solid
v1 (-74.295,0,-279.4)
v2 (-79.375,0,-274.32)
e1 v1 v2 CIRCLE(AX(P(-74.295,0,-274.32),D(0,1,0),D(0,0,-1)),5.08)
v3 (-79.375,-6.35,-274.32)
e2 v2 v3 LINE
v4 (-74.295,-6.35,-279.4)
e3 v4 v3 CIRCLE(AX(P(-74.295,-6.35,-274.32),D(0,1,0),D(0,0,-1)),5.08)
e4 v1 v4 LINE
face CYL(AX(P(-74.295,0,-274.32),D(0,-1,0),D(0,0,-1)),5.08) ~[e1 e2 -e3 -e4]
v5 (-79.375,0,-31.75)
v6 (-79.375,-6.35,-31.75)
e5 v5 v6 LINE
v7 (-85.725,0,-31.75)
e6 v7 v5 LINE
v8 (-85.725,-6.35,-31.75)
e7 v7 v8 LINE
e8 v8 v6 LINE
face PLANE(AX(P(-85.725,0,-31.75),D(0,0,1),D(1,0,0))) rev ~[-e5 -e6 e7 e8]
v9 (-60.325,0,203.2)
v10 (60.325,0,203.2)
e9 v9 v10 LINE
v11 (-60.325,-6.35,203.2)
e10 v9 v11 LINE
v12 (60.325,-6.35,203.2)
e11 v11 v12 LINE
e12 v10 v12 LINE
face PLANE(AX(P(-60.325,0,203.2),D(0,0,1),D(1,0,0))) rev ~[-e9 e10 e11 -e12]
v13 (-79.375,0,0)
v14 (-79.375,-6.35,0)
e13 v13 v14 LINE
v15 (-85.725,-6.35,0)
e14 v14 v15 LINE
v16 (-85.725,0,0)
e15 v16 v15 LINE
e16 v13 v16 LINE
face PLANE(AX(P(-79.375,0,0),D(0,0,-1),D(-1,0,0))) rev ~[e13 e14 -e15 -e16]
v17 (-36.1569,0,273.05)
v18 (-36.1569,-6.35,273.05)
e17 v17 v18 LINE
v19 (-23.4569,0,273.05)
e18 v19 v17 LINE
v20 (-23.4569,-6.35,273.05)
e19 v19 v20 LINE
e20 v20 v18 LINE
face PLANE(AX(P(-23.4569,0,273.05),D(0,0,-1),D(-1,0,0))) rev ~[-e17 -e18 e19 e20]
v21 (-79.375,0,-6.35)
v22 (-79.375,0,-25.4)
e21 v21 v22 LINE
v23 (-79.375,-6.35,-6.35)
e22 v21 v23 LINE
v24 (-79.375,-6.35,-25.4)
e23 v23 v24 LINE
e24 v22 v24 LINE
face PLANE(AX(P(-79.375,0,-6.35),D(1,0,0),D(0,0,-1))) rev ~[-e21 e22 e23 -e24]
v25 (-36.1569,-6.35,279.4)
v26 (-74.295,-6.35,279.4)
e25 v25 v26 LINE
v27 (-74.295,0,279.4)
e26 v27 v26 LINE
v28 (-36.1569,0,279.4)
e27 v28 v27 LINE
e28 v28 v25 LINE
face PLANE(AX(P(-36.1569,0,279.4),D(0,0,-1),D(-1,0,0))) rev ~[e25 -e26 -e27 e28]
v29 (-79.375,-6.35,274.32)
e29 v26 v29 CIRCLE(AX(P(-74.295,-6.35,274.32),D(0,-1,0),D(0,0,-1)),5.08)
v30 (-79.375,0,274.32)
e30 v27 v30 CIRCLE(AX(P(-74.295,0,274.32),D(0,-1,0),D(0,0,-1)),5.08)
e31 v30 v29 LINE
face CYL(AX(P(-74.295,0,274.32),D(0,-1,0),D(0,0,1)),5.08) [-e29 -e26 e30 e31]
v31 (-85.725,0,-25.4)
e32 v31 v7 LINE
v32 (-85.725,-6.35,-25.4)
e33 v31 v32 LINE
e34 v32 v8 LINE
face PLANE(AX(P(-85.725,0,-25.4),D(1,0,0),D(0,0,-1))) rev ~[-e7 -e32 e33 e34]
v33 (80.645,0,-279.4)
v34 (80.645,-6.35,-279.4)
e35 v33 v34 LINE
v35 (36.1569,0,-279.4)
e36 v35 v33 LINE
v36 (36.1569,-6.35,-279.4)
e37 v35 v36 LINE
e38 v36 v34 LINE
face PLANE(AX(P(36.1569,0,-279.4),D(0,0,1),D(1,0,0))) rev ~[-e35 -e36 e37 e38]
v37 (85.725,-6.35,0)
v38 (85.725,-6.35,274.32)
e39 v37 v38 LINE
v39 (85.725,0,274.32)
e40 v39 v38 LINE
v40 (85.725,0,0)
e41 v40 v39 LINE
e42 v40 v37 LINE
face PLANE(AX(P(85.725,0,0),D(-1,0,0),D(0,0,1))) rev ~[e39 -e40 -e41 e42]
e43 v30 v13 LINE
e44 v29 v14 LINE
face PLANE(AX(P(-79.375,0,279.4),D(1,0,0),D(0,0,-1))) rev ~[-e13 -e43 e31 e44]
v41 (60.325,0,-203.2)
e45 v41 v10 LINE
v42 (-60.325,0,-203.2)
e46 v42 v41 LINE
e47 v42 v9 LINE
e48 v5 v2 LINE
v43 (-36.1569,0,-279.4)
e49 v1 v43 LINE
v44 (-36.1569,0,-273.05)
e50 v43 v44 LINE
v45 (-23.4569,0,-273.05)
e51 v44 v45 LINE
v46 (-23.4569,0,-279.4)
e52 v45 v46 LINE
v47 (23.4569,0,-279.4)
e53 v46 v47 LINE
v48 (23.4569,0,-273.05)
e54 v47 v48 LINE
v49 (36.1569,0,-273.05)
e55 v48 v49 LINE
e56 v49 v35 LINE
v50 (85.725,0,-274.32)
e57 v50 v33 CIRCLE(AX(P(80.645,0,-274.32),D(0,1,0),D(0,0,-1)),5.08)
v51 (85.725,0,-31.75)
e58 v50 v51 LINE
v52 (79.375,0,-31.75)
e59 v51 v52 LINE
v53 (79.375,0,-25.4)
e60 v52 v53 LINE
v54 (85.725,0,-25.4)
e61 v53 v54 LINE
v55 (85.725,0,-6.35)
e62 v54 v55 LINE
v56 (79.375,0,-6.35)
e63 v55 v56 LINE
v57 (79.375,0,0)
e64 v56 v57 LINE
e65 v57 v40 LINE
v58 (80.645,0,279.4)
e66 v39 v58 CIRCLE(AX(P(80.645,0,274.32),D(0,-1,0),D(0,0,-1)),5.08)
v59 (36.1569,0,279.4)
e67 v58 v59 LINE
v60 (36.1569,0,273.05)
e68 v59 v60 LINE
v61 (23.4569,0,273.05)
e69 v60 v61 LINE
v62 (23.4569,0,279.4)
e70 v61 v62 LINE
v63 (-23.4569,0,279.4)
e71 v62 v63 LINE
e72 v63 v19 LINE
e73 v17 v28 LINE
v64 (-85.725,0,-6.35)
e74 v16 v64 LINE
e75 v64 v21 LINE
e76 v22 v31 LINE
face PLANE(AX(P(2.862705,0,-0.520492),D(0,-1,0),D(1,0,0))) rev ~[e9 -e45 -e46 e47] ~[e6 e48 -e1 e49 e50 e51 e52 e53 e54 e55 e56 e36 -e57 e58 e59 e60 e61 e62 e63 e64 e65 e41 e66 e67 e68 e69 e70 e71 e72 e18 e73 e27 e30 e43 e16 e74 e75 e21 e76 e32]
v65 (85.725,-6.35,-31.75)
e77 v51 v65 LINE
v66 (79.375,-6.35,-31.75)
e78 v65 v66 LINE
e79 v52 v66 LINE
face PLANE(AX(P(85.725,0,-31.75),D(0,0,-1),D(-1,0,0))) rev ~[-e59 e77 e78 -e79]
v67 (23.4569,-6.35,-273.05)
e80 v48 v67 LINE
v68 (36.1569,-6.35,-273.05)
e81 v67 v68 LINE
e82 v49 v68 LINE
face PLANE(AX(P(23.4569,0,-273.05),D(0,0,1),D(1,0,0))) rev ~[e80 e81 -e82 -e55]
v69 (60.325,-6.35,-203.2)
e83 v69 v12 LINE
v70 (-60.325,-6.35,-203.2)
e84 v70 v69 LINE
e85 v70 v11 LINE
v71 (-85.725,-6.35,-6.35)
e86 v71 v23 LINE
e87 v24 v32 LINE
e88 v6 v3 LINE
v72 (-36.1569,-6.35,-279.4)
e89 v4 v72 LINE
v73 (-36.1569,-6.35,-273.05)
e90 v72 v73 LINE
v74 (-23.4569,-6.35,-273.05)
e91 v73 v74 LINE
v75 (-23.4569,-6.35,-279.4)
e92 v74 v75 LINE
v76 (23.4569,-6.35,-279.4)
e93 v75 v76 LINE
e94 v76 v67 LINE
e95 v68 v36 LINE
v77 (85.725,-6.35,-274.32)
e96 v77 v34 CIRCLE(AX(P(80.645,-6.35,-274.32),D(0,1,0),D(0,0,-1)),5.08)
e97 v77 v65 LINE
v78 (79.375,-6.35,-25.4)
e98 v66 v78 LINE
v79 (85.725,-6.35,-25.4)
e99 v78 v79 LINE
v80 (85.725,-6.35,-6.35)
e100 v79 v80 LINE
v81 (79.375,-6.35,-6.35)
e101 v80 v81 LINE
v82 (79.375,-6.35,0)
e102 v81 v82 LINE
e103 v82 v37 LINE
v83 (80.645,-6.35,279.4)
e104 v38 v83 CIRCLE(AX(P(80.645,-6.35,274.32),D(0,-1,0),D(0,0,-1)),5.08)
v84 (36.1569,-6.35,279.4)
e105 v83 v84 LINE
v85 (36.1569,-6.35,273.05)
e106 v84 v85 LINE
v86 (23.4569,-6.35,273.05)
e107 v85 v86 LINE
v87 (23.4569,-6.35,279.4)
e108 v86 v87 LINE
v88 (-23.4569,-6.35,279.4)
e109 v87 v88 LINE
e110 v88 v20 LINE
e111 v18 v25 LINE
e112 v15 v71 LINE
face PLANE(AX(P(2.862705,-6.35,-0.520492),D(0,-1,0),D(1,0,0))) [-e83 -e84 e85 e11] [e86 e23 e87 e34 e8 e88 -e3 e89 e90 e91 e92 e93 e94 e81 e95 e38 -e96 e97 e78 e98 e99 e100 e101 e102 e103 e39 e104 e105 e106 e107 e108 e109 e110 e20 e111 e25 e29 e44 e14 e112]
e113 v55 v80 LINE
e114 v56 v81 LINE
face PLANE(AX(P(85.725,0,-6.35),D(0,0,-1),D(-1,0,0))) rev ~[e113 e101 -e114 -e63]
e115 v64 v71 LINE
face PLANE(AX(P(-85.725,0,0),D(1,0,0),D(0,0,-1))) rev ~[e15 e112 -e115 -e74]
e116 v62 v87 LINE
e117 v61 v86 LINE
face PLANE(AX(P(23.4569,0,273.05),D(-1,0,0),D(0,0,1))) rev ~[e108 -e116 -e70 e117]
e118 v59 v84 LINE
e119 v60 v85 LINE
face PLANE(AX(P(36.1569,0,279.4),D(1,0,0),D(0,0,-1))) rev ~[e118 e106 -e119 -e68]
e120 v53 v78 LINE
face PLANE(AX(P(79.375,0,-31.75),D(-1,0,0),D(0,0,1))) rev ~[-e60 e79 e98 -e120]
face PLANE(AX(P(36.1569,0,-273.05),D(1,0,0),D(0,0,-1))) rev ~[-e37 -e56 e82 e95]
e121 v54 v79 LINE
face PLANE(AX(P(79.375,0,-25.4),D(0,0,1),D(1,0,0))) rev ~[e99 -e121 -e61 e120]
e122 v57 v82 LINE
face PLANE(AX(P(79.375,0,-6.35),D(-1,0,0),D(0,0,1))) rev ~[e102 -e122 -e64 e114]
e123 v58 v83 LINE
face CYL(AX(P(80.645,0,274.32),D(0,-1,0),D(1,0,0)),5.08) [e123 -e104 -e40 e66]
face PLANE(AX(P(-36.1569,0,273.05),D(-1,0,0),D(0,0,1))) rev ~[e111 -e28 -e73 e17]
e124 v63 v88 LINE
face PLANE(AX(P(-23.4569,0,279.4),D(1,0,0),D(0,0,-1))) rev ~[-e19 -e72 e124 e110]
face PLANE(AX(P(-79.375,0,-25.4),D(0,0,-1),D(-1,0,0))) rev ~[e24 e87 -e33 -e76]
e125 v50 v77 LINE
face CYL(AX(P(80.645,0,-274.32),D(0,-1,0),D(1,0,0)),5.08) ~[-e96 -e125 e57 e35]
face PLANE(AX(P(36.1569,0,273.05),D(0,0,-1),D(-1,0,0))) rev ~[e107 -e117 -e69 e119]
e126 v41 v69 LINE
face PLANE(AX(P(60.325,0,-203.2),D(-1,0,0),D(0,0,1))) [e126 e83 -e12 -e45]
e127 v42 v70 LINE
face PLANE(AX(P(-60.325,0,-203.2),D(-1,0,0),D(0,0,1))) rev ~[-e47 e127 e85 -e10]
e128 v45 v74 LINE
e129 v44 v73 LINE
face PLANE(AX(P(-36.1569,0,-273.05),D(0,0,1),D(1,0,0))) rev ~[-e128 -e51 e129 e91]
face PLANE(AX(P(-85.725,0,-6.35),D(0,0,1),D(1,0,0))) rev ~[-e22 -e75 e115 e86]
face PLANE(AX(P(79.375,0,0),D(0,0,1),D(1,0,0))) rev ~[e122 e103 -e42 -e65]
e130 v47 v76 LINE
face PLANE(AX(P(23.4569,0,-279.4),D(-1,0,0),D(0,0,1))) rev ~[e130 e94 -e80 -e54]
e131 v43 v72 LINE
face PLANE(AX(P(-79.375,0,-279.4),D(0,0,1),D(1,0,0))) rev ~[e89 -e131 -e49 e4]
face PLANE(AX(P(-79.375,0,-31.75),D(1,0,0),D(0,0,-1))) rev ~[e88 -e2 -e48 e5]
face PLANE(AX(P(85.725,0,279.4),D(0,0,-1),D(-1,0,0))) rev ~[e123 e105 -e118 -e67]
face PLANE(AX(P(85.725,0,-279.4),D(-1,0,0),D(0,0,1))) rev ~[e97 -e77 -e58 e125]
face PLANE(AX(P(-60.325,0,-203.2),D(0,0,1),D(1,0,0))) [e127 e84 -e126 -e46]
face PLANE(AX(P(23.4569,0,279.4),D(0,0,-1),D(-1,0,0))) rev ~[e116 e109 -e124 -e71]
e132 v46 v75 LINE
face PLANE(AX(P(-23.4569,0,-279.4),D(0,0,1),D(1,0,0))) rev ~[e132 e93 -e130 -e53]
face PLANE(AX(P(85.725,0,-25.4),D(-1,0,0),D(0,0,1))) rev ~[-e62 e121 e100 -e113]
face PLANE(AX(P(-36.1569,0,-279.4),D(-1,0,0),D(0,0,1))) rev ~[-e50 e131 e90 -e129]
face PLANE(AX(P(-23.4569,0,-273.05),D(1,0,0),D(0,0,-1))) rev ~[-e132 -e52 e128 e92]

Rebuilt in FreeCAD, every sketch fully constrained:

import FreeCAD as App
import Part
import Sketcher

V = App.Vector
Q = App.Units.Quantity


def edges_at(feature, points):
    """Names of the edges that pass closest to the given points."""
    edges = feature.Shape.Edges
    near = lambda p: min(range(len(edges)), key=lambda i: edges[i].distToShape(Part.Vertex(*p))[0])
    return sorted({f"Edge{near(p) + 1}" for p in points})

doc = App.newDocument("Part")
body = doc.addObject("PartDesign::Body", "Body")

# Sketch on XZ plane
sketch1 = doc.addObject("Sketcher::SketchObject", "Sketch")
body.addObject(sketch1)
sketch1.AttachmentSupport = (doc.XZ_Plane, [""])
sketch1.MapMode = "FlatFace"
sketch1.addGeometry([
    Part.LineSegment(V(86, 0, 0), V(86, 279, 0)),  # 0
    Part.LineSegment(V(86, 279, 0), V(36, 279, 0)),  # 1
    Part.LineSegment(V(36, 279, 0), V(36, 273, 0)),  # 2
    Part.LineSegment(V(36, 273, 0), V(23, 273, 0)),  # 3
    Part.LineSegment(V(23, 273, 0), V(23, 279, 0)),  # 4
    Part.LineSegment(V(23, 279, 0), V(-23, 279, 0)),  # 5
    Part.LineSegment(V(-23, 279, 0), V(-23, 273, 0)),  # 6
    Part.LineSegment(V(-23, 273, 0), V(-36, 273, 0)),  # 7
    Part.LineSegment(V(-36, 273, 0), V(-36, 279, 0)),  # 8
    Part.LineSegment(V(-36, 279, 0), V(-79, 279, 0)),  # 9
    Part.LineSegment(V(-79, 279, 0), V(-79, 0, 0)),  # 10
    Part.LineSegment(V(-79, 0, 0), V(-86, 0, 0)),  # 11
    Part.LineSegment(V(-86, 0, 0), V(-86, -6, 0)),  # 12
    Part.LineSegment(V(-86, -6, 0), V(-79, -6, 0)),  # 13
    Part.LineSegment(V(-79, -6, 0), V(-79, -25, 0)),  # 14
    Part.LineSegment(V(-79, -25, 0), V(-86, -25, 0)),  # 15
    Part.LineSegment(V(-86, -25, 0), V(-86, -32, 0)),  # 16
    Part.LineSegment(V(-86, -32, 0), V(-79, -32, 0)),  # 17
    Part.LineSegment(V(-79, -32, 0), V(-79, -279, 0)),  # 18
    Part.LineSegment(V(-79, -279, 0), V(-36, -279, 0)),  # 19
    Part.LineSegment(V(-36, -279, 0), V(-36, -273, 0)),  # 20
    Part.LineSegment(V(-36, -273, 0), V(-23, -273, 0)),  # 21
    Part.LineSegment(V(-23, -273, 0), V(-23, -279, 0)),  # 22
    Part.LineSegment(V(-23, -279, 0), V(23, -279, 0)),  # 23
    Part.LineSegment(V(23, -279, 0), V(23, -273, 0)),  # 24
    Part.LineSegment(V(23, -273, 0), V(36, -273, 0)),  # 25
    Part.LineSegment(V(36, -273, 0), V(36, -279, 0)),  # 26
    Part.LineSegment(V(36, -279, 0), V(86, -279, 0)),  # 27
    Part.LineSegment(V(86, -279, 0), V(86, -32, 0)),  # 28
    Part.LineSegment(V(86, -32, 0), V(79, -32, 0)),  # 29
    Part.LineSegment(V(79, -32, 0), V(79, -25, 0)),  # 30
    Part.LineSegment(V(79, -25, 0), V(86, -25, 0)),  # 31
    Part.LineSegment(V(86, -25, 0), V(86, -6, 0)),  # 32
    Part.LineSegment(V(86, -6, 0), V(79, -6, 0)),  # 33
    Part.LineSegment(V(79, -6, 0), V(79, 0, 0)),  # 34
    Part.LineSegment(V(79, 0, 0), V(86, 0, 0)),  # 35
    Part.LineSegment(V(60, -203, 0), V(-60, -203, 0)),  # 36
    Part.LineSegment(V(-60, -203, 0), V(-60, 203, 0)),  # 37
    Part.LineSegment(V(-60, 203, 0), V(60, 203, 0)),  # 38
    Part.LineSegment(V(60, 203, 0), V(60, -203, 0)),  # 39
], False)
sketch1.addConstraint([
    Sketcher.Constraint("Coincident", 0, 2, 1, 1),
    Sketcher.Constraint("Coincident", 1, 2, 2, 1),
    Sketcher.Constraint("Coincident", 2, 2, 3, 1),
    Sketcher.Constraint("Coincident", 3, 2, 4, 1),
    Sketcher.Constraint("Coincident", 4, 2, 5, 1),
    Sketcher.Constraint("Coincident", 5, 2, 6, 1),
    Sketcher.Constraint("Coincident", 6, 2, 7, 1),
    Sketcher.Constraint("Coincident", 7, 2, 8, 1),
    Sketcher.Constraint("Coincident", 8, 2, 9, 1),
    Sketcher.Constraint("Coincident", 9, 2, 10, 1),
    Sketcher.Constraint("Coincident", 10, 2, 11, 1),
    Sketcher.Constraint("Coincident", 11, 2, 12, 1),
    Sketcher.Constraint("Coincident", 12, 2, 13, 1),
    Sketcher.Constraint("Coincident", 13, 2, 14, 1),
    Sketcher.Constraint("Coincident", 14, 2, 15, 1),
    Sketcher.Constraint("Coincident", 15, 2, 16, 1),
    Sketcher.Constraint("Coincident", 16, 2, 17, 1),
    Sketcher.Constraint("Coincident", 17, 2, 18, 1),
    Sketcher.Constraint("Coincident", 18, 2, 19, 1),
    Sketcher.Constraint("Coincident", 19, 2, 20, 1),
    Sketcher.Constraint("Coincident", 20, 2, 21, 1),
    Sketcher.Constraint("Coincident", 21, 2, 22, 1),
    Sketcher.Constraint("Coincident", 22, 2, 23, 1),
    Sketcher.Constraint("Coincident", 23, 2, 24, 1),
    Sketcher.Constraint("Coincident", 24, 2, 25, 1),
    Sketcher.Constraint("Coincident", 25, 2, 26, 1),
    Sketcher.Constraint("Coincident", 26, 2, 27, 1),
    Sketcher.Constraint("Coincident", 27, 2, 28, 1),
    Sketcher.Constraint("Coincident", 28, 2, 29, 1),
    Sketcher.Constraint("Coincident", 29, 2, 30, 1),
    Sketcher.Constraint("Coincident", 30, 2, 31, 1),
    Sketcher.Constraint("Coincident", 31, 2, 32, 1),
    Sketcher.Constraint("Coincident", 32, 2, 33, 1),
    Sketcher.Constraint("Coincident", 33, 2, 34, 1),
    Sketcher.Constraint("Coincident", 34, 2, 35, 1),
    Sketcher.Constraint("Coincident", 35, 2, 0, 1),
    Sketcher.Constraint("Coincident", 36, 2, 37, 1),
    Sketcher.Constraint("Coincident", 37, 2, 38, 1),
    Sketcher.Constraint("Coincident", 38, 2, 39, 1),
    Sketcher.Constraint("Coincident", 39, 2, 36, 1),
    Sketcher.Constraint("Vertical", 0),
    Sketcher.Constraint("Horizontal", 1),
    Sketcher.Constraint("Vertical", 2),
    Sketcher.Constraint("Horizontal", 3),
    Sketcher.Constraint("Vertical", 4),
    Sketcher.Constraint("Horizontal", 5),
    Sketcher.Constraint("Vertical", 6),
    Sketcher.Constraint("Horizontal", 7),
    Sketcher.Constraint("Vertical", 8),
    Sketcher.Constraint("Horizontal", 9),
    Sketcher.Constraint("Vertical", 10),
    Sketcher.Constraint("Horizontal", 11),
    Sketcher.Constraint("Vertical", 12),
    Sketcher.Constraint("Horizontal", 13),
    Sketcher.Constraint("Vertical", 14),
    Sketcher.Constraint("Horizontal", 15),
    Sketcher.Constraint("Vertical", 16),
    Sketcher.Constraint("Horizontal", 17),
    Sketcher.Constraint("Vertical", 18),
    Sketcher.Constraint("Horizontal", 19),
    Sketcher.Constraint("Vertical", 20),
    Sketcher.Constraint("Horizontal", 21),
    Sketcher.Constraint("Vertical", 22),
    Sketcher.Constraint("Horizontal", 23),
    Sketcher.Constraint("Vertical", 24),
    Sketcher.Constraint("Horizontal", 25),
    Sketcher.Constraint("Vertical", 26),
    Sketcher.Constraint("Horizontal", 27),
    Sketcher.Constraint("Vertical", 28),
    Sketcher.Constraint("Horizontal", 29),
    Sketcher.Constraint("Vertical", 30),
    Sketcher.Constraint("Horizontal", 31),
    Sketcher.Constraint("Vertical", 32),
    Sketcher.Constraint("Horizontal", 33),
    Sketcher.Constraint("Vertical", 34),
    Sketcher.Constraint("Horizontal", 35),
    Sketcher.Constraint("Horizontal", 36),
    Sketcher.Constraint("Vertical", 37),
    Sketcher.Constraint("Horizontal", 38),
    Sketcher.Constraint("Vertical", 39),
    Sketcher.Constraint("Symmetric", 1, 2, 19, 2, -1, 1),
    Sketcher.Constraint("Symmetric", 3, 2, 21, 2, -1, 1),
    Sketcher.Constraint("Symmetric", 5, 2, 23, 2, -1, 1),
    Sketcher.Constraint("Symmetric", 7, 2, 25, 2, -1, 1),
    Sketcher.Constraint("Symmetric", 10, 2, 34, 2, -1, 1),
    Sketcher.Constraint("Symmetric", 36, 2, 38, 2, -1, 1),
    Sketcher.Constraint("Symmetric", 3, 2, 6, 2, -2),
    Sketcher.Constraint("Symmetric", 1, 2, 8, 2, -2),
    Sketcher.Constraint("Symmetric", 16, 2, 28, 2, -2),
    Sketcher.Constraint("Symmetric", 14, 2, 30, 2, -2),
    Sketcher.Constraint("Symmetric", 12, 2, 32, 2, -2),
    Sketcher.Constraint("Symmetric", 11, 2, 35, 2, -2),
    Sketcher.Constraint("Symmetric", 0, 2, 27, 2, -1),
    Sketcher.Constraint("Horizontal", 1, 2, 4, 2),
    Sketcher.Constraint("Vertical", 10, 2, 13, 2),
    Sketcher.Constraint("Vertical", 14, 2, 17, 2),
    Sketcher.Constraint("Equal", 35, 2),
    Sketcher.Constraint("Equal", 8, 12),
    Sketcher.Constraint("Equal", 12, 16),
    Sketcher.Constraint("DistanceY", 0, 1, 0, 2, Q("11 in")),
    Sketcher.Constraint("DistanceY", 37, 1, 37, 2, Q("16 in")),
    Sketcher.Constraint("DistanceX", 3, 2, 3, 1, Q("0.5 in")),
    Sketcher.Constraint("DistanceY", 14, 2, -1, 1, Q("1 in")),
    Sketcher.Constraint("DistanceX", 38, 2, 0, 2, Q("1 in")),
    Sketcher.Constraint("DistanceX", 11, 2, 11, 1, Q("0.25 in")),
    Sketcher.Constraint("DistanceX", 36, 2, 36, 1, Q("4.75 in")),
    Sketcher.Constraint("DistanceX", 5, 2, 5, 1, Q("1.847 in")),
])
pad1 = doc.addObject("PartDesign::Pad", "Pad")
body.addObject(pad1)
pad1.Profile = sketch1
pad1.Length = Q("0.25 in")
doc.recompute()

fillet = doc.addObject("PartDesign::Fillet", "Fillet")
body.addObject(fillet)
fillet.Base = (pad1, edges_at(pad1, [
    (85.725, -3.175, 279.4),
    (-79.375, -3.175, 279.4),
    (85.725, -3.175, -279.4),
    (-79.375, -3.175, -279.4),
]))
fillet.Radius = Q("0.2 in")

doc.recompute()
